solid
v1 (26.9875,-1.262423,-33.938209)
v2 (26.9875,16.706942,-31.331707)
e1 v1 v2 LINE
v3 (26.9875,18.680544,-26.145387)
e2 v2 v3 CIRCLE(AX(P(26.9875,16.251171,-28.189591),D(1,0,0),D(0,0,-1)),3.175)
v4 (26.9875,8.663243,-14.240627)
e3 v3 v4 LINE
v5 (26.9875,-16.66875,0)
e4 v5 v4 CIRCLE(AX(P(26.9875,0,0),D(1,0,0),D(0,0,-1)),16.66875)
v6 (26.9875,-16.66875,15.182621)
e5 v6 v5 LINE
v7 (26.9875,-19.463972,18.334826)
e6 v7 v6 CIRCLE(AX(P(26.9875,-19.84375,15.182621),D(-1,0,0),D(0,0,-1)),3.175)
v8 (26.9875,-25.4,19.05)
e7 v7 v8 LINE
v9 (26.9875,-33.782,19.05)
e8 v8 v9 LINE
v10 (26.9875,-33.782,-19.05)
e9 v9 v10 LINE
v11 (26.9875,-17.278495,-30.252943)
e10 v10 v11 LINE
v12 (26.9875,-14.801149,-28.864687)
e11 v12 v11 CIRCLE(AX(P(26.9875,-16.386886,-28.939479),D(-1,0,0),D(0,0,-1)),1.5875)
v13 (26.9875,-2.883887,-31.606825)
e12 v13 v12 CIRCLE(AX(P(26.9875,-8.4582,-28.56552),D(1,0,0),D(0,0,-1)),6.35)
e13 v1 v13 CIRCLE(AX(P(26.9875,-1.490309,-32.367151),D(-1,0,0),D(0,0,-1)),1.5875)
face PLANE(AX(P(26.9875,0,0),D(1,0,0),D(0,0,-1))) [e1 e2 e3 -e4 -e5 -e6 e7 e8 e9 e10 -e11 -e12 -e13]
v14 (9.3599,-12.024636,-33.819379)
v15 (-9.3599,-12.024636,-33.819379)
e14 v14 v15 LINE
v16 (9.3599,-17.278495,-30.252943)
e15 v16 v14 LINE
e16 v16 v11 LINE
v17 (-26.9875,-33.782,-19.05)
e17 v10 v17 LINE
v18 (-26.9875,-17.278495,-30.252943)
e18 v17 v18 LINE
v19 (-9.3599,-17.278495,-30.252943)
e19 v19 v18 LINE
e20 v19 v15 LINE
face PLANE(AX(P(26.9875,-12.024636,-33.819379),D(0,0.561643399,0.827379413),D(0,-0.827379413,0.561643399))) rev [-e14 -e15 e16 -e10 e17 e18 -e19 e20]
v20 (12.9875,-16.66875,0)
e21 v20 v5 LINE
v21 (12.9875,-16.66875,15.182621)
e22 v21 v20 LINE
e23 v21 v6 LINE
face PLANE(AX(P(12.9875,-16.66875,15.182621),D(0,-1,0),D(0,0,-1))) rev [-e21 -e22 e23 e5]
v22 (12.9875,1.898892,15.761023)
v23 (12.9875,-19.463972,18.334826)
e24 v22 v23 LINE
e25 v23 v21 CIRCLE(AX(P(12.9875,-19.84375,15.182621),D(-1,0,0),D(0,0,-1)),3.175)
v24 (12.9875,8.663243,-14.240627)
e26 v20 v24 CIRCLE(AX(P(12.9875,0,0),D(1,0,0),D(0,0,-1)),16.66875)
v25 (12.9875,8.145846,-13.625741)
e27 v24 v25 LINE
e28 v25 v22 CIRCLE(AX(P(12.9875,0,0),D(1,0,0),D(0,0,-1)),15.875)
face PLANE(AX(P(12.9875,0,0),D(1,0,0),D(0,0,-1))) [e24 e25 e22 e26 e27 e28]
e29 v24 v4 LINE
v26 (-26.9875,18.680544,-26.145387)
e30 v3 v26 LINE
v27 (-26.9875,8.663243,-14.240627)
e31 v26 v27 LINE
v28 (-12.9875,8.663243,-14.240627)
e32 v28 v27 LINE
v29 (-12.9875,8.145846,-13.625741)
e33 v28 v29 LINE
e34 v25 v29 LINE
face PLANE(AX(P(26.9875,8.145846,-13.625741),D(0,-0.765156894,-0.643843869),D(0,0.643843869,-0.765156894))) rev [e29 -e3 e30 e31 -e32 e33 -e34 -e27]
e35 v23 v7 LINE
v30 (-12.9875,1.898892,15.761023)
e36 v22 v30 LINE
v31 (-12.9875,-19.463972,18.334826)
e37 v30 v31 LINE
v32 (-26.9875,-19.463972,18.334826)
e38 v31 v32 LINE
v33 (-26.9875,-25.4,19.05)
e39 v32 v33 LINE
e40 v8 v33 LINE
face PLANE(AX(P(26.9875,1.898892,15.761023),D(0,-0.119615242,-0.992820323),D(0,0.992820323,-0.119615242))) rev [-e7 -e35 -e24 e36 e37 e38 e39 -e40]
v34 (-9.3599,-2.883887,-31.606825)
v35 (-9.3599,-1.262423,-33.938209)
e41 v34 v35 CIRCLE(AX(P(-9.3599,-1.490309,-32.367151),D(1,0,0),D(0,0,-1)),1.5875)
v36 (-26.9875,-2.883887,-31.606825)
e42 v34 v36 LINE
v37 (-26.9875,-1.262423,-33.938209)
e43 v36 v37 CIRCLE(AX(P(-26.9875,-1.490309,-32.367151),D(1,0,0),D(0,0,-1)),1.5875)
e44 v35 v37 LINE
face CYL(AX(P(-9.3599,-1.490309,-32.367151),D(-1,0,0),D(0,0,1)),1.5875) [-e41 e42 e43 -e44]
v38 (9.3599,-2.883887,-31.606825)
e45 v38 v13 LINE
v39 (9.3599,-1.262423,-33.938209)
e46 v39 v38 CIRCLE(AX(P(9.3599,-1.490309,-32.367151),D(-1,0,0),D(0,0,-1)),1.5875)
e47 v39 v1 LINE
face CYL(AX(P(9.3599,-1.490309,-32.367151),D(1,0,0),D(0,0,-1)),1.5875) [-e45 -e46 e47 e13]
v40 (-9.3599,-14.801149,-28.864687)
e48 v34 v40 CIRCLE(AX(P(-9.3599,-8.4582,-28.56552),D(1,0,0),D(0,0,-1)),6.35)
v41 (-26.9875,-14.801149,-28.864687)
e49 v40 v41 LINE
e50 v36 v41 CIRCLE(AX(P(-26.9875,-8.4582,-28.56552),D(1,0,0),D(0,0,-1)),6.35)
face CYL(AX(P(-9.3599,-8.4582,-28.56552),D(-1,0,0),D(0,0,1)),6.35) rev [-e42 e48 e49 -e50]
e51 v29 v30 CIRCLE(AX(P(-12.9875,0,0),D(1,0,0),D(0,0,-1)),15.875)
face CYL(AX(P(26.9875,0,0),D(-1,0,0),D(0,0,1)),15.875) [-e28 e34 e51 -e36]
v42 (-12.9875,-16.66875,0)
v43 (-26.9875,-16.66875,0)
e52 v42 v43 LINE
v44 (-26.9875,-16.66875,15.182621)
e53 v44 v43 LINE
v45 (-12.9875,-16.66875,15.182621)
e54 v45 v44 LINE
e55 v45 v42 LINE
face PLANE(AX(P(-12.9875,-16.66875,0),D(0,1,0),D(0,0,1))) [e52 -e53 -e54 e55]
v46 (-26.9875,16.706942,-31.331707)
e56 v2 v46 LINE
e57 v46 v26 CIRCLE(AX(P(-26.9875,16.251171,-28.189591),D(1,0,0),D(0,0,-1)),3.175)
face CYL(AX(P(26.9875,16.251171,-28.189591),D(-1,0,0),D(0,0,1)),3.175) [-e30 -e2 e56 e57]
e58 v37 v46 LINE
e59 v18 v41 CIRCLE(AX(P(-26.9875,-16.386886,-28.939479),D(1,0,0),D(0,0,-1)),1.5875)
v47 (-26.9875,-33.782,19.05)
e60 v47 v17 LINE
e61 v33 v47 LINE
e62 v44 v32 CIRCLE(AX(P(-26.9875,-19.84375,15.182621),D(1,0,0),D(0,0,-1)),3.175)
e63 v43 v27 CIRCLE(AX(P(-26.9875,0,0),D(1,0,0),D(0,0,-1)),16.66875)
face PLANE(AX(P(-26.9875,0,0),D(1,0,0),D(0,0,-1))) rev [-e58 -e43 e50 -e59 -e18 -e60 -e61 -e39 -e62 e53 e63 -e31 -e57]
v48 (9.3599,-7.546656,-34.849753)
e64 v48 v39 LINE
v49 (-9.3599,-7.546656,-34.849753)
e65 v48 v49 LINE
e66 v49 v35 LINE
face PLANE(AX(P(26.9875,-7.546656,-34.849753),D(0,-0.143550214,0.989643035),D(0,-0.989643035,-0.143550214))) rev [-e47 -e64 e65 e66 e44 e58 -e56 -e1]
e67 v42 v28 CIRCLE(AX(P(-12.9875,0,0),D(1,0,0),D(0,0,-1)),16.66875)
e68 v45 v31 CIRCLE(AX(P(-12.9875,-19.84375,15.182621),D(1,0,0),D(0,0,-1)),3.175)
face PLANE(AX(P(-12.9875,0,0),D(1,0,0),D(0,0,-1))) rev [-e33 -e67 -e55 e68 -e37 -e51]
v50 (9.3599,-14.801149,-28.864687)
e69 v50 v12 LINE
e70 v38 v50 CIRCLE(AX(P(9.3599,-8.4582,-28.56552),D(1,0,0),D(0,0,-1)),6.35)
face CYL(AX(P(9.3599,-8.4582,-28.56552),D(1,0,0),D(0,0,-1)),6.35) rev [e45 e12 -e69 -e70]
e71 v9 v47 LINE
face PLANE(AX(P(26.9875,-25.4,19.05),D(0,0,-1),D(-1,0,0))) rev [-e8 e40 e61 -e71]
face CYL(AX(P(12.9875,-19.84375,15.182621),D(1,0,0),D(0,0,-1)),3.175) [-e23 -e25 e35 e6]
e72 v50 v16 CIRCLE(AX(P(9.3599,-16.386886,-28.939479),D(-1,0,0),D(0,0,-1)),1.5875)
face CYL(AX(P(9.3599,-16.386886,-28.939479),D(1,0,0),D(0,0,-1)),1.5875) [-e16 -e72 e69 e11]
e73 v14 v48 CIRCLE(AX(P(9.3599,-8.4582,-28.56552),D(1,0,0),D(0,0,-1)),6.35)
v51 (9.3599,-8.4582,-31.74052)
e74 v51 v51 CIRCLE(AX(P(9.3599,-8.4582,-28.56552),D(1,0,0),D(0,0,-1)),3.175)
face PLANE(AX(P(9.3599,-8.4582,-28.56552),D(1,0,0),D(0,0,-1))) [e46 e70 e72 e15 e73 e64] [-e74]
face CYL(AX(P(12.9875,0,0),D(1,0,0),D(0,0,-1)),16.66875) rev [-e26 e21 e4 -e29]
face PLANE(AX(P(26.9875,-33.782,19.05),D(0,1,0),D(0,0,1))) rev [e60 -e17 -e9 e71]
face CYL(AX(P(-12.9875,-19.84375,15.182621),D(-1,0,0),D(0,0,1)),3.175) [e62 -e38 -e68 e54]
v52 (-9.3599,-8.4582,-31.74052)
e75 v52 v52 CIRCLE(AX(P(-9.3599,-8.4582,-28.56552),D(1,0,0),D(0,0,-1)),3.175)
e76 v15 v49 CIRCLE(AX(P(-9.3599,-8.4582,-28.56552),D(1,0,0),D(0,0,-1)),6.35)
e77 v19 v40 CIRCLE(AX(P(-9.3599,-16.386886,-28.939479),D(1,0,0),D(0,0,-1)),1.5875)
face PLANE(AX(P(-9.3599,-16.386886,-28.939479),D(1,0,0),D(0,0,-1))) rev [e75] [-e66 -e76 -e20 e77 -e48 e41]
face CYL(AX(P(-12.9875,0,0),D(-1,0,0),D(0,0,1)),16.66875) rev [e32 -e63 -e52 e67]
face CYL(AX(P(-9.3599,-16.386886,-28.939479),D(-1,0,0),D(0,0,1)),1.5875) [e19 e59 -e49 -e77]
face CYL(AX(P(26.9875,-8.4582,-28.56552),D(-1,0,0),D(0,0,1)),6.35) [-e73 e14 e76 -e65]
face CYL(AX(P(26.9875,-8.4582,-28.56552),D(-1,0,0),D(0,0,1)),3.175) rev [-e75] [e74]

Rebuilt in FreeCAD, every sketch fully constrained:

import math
import FreeCAD as App
import Part
import Sketcher
from FreeCAD import Vector
Q = App.Units.Quantity

doc = App.newDocument("Part")
params = doc.addObject("Spreadsheet::Sheet", "Params")
for row, (alias, value) in enumerate([
    ("sketch1_height", "1.5 in"),
    ("sketch1_radius", "0.625 in"),
    ("sketch1_width", "0.33 in"),
    ("pad1_length", "2.125 in"),
    ("sketch2_diameter", "0.25 in"),
    ("sketch2_radius", "0.25 in"),
    ("sketch2_radius2", "0.625 in"),
    ("sketch2_width", "0.33 in"),
    ("pad2_length", "2.125 in"),
    ("sketch3_radius", "0.65625 in"),
    ("sketch3_radius2", "0.625 in"),
    ("sketch3_radius3", "0.125 in"),
    ("pocket1_length", "14 mm"),
    ("sketch4_radius", "0.65625 in"),
    ("sketch4_radius2", "0.625 in"),
    ("sketch4_radius3", "0.125 in"),
    ("pocket2_length", "14 mm"),
    ("sketch5_radius", "0.25 in"),
    ("sketch5_radius2", "0.0625 in"),
    ("pocket3_length", "0.694 in"),
    ("sketch6_radius", "0.25 in"),
    ("sketch6_radius2", "0.0625 in"),
    ("pocket4_length", "0.694 in"),
], start=1):
    params.set(f"A{row}", alias)
    params.set(f"B{row}", "=" + value)
    params.setAlias(f"B{row}", alias)

body = doc.addObject("PartDesign::Body", "Body")

# Sketch on YZ plane
sketch1 = body.newObject("Sketcher::SketchObject", "Sketch")
sketch1.AttachmentSupport = (doc.getObject("YZ_Plane"), [""])
sketch1.MapMode = "FlatFace"
sketch1.addGeometry(Part.LineSegment(Vector(2, 16, 0), Vector(-25, 19, 0)), False)
sketch1.addGeometry(Part.LineSegment(Vector(-25, 19, 0), Vector(-34, 19, 0)), False)
sketch1.addGeometry(Part.LineSegment(Vector(-34, 19, 0), Vector(-34, -19, 0)), False)
sketch1.addGeometry(Part.LineSegment(Vector(-34, -19, 0), Vector(-25, -19, 0)), False)
sketch1.addGeometry(Part.LineSegment(Vector(-25, -19, 0), Vector(2, -16, 0)), False)
sketch1.addGeometry(Part.ArcOfCircle(Part.Circle(Vector(0, 0, 0), Vector(0, 0, 1), 16), math.radians(-83), math.radians(83)), False)
sketch1.addConstraint(Sketcher.Constraint("Coincident", 0, 2, 1, 1))
sketch1.addConstraint(Sketcher.Constraint("Coincident", 1, 2, 2, 1))
sketch1.addConstraint(Sketcher.Constraint("Coincident", 2, 2, 3, 1))
sketch1.addConstraint(Sketcher.Constraint("Coincident", 3, 2, 4, 1))
sketch1.addConstraint(Sketcher.Constraint("Tangent", 4, 2, 5, 1))
sketch1.addConstraint(Sketcher.Constraint("Tangent", 5, 2, 0, 1))
sketch1.addConstraint(Sketcher.Constraint("Horizontal", 1))
sketch1.addConstraint(Sketcher.Constraint("Vertical", 2))
sketch1.addConstraint(Sketcher.Constraint("Horizontal", 3))
sketch1.addConstraint(Sketcher.Constraint("Coincident", 5, 3, -1, 1))
sketch1.addConstraint(Sketcher.Constraint("Symmetric", 0, 2, 3, 2, -1))
sketch1.addConstraint(Sketcher.Constraint("DistanceY", 2, 2, 2, 1, Q("1.5 in")))
sketch1.addConstraint(Sketcher.Constraint("DistanceX", 0, 2, -1, 1, Q("1 in")))
sketch1.addConstraint(Sketcher.Constraint("Radius", 5, Q("0.625 in")))
sketch1.addConstraint(Sketcher.Constraint("DistanceX", 1, 2, 1, 1, Q("0.33 in")))
sketch1.setExpression("Constraints[11]", "Params.sketch1_height")
sketch1.setExpression("Constraints[13]", "Params.sketch1_radius")
sketch1.setExpression("Constraints[14]", "Params.sketch1_width")
pad1 = body.newObject("PartDesign::Pad", "Pad")
pad1.Profile = sketch1
pad1.setExpression("Length", "Params.pad1_length")
pad1.Midplane = True

# Sketch on YZ plane
sketch2 = body.newObject("Sketcher::SketchObject", "Sketch001")
sketch2.AttachmentSupport = (doc.getObject("YZ_Plane"), [""])
sketch2.MapMode = "FlatFace"
sketch2.addGeometry(Part.LineSegment(Vector(-7.5, -34.8, 0), Vector(16.7, -31.3, 0)), False)
sketch2.addGeometry(Part.ArcOfCircle(Part.Circle(Vector(16.3, -28.2, 0), Vector(0, 0, 1), 3.2), math.radians(-82), math.radians(40)), False)
sketch2.addGeometry(Part.LineSegment(Vector(18.7, -26.1, 0), Vector(8.1, -13.6, 0)), False)
sketch2.addGeometry(Part.ArcOfCircle(Part.Circle(Vector(0, 0, 0), Vector(0, 0, 1), 15.9), math.radians(-83), math.radians(-59)), False)
sketch2.addGeometry(Part.LineSegment(Vector(1.9, -15.8, 0), Vector(-25.4, -19.1, 0)), False)
sketch2.addGeometry(Part.LineSegment(Vector(-25.4, -19.1, 0), Vector(-33.8, -19.1, 0)), False)
sketch2.addGeometry(Part.LineSegment(Vector(-33.8, -19.1, 0), Vector(-12, -33.8, 0)), False)
sketch2.addGeometry(Part.ArcOfCircle(Part.Circle(Vector(-8.5, -28.6, 0), Vector(0, 0, 1), 6.3), math.radians(-124), math.radians(-82)), False)
sketch2.addGeometry(Part.Circle(Vector(-8.5, -28.6, 0), Vector(0, 0, 1), 3.2), False)
sketch2.addConstraint(Sketcher.Constraint("Tangent", 0, 2, 1, 1))
sketch2.addConstraint(Sketcher.Constraint("Tangent", 1, 2, 2, 1))
sketch2.addConstraint(Sketcher.Constraint("Coincident", 2, 2, 3, 2))
sketch2.addConstraint(Sketcher.Constraint("Tangent", 3, 1, 4, 1))
sketch2.addConstraint(Sketcher.Constraint("Coincident", 4, 2, 5, 1))
sketch2.addConstraint(Sketcher.Constraint("Coincident", 5, 2, 6, 1))
sketch2.addConstraint(Sketcher.Constraint("Tangent", 6, 2, 7, 1))
sketch2.addConstraint(Sketcher.Constraint("Tangent", 7, 2, 0, 1))
sketch2.addConstraint(Sketcher.Constraint("Horizontal", 5))
sketch2.addConstraint(Sketcher.Constraint("Coincident", 3, 3, -1, 1))
sketch2.addConstraint(Sketcher.Constraint("Coincident", 8, 3, 7, 3))
sketch2.addConstraint(Sketcher.Constraint("Equal", 1, 8))
sketch2.addConstraint(Sketcher.Constraint("Diameter", 8, Q("0.25 in")))
sketch2.addConstraint(Sketcher.Constraint("Radius", 7, Q("0.25 in")))
sketch2.addConstraint(Sketcher.Constraint("DistanceX", 4, 2, -1, 1, Q("1 in")))
sketch2.addConstraint(Sketcher.Constraint("Radius", 3, Q("0.625 in")))
sketch2.addConstraint(Sketcher.Constraint("DistanceX", 5, 2, 5, 1, Q("0.33 in")))
sketch2.addConstraint(Sketcher.Constraint("DistanceY", 4, 2, -1, 1, Q("0.75 in")))
sketch2.addConstraint(Sketcher.Constraint("DistanceX", 7, 3, -1, 1, Q("0.333 in")))
sketch2.addConstraint(Sketcher.Constraint("DistanceX", 0, 2, 1, 2, 1.973601))
sketch2.addConstraint(Sketcher.Constraint("DistanceX", 2, 2, 1, 2, 10.534698))
sketch2.addConstraint(Sketcher.Constraint("Distance", 0, 24.507421))
sketch2.addConstraint(Sketcher.Constraint("Distance", 6, 26.29672))
sketch2.setExpression("Constraints[12]", "Params.sketch2_diameter")
sketch2.setExpression("Constraints[13]", "Params.sketch2_radius")
sketch2.setExpression("Constraints[15]", "Params.sketch2_radius2")
sketch2.setExpression("Constraints[16]", "Params.sketch2_width")
pad2 = body.newObject("PartDesign::Pad", "Pad001")
pad2.Profile = sketch2
pad2.setExpression("Length", "Params.pad2_length")
pad2.Midplane = True

# Sketch on YZ plane
sketch3 = body.newObject("Sketcher::SketchObject", "Sketch002")
sketch3.AttachmentSupport = (doc.getObject("YZ_Plane"), [""])
sketch3.MapMode = "FlatFace"
sketch3.AttachmentOffset = App.Placement(Vector(0, 0, 1.0625 * 25.4), App.Rotation())
sketch3.addGeometry(Part.LineSegment(Vector(-16.7, 15.2, 0), Vector(-16.7, 0, 0)), False)
sketch3.addGeometry(Part.ArcOfCircle(Part.Circle(Vector(0, 0, 0), Vector(0, 0, 1), 16.7), math.radians(180), math.radians(301)), False)
sketch3.addGeometry(Part.LineSegment(Vector(8.7, -14.2, 0), Vector(8.1, -13.6, 0)), False)
sketch3.addGeometry(Part.ArcOfCircle(Part.Circle(Vector(0, 0, 0), Vector(0, 0, 1), 15.9), math.radians(-59), math.radians(83)), False)
sketch3.addGeometry(Part.LineSegment(Vector(1.9, 15.8, 0), Vector(-19.5, 18.3, 0)), False)
sketch3.addGeometry(Part.ArcOfCircle(Part.Circle(Vector(-19.8, 15.2, 0), Vector(0, 0, 1), 3.2), math.radians(0), math.radians(83)), False)
sketch3.addConstraint(Sketcher.Constraint("Tangent", 0, 2, 1, 1))
sketch3.addConstraint(Sketcher.Constraint("Coincident", 1, 2, 2, 1))
sketch3.addConstraint(Sketcher.Constraint("Coincident", 2, 2, 3, 1))
sketch3.addConstraint(Sketcher.Constraint("Tangent", 3, 2, 4, 1))
sketch3.addConstraint(Sketcher.Constraint("Tangent", 4, 2, 5, 2))
sketch3.addConstraint(Sketcher.Constraint("Tangent", 5, 1, 0, 1))
sketch3.addConstraint(Sketcher.Constraint("Vertical", 0))
sketch3.addConstraint(Sketcher.Constraint("Coincident", 1, 3, -1, 1))
sketch3.addConstraint(Sketcher.Constraint("Coincident", 3, 3, -1, 1))
sketch3.addConstraint(Sketcher.Constraint("Radius", 1, Q("0.65625 in")))
sketch3.addConstraint(Sketcher.Constraint("Radius", 3, Q("0.625 in")))
sketch3.addConstraint(Sketcher.Constraint("Radius", 5, Q("0.125 in")))
sketch3.addConstraint(Sketcher.Constraint("DistanceY", 0, 2, 0, 1, 15.182621))
sketch3.addConstraint(Sketcher.Constraint("DistanceY", 2, 2, -1, 1, 13.625741))
sketch3.addConstraint(Sketcher.Constraint("Distance", 2, 0.803607))
sketch3.setExpression("Constraints[9]", "Params.sketch3_radius")
sketch3.setExpression("Constraints[10]", "Params.sketch3_radius2")
sketch3.setExpression("Constraints[11]", "Params.sketch3_radius3")
pocket1 = body.newObject("PartDesign::Pocket", "Pocket")
pocket1.Profile = sketch3
pocket1.setExpression("Length", "Params.pocket1_length")

# Sketch on YZ plane
sketch4 = body.newObject("Sketcher::SketchObject", "Sketch003")
sketch4.AttachmentSupport = (doc.getObject("YZ_Plane"), [""])
sketch4.MapMode = "FlatFace"
sketch4.AttachmentOffset = App.Placement(Vector(0, 0, -12.9875), App.Rotation())
sketch4.addGeometry(Part.LineSegment(Vector(-16.7, 15.2, 0), Vector(-16.7, 0, 0)), False)
sketch4.addGeometry(Part.ArcOfCircle(Part.Circle(Vector(0, 0, 0), Vector(0, 0, 1), 16.7), math.radians(180), math.radians(301)), False)
sketch4.addGeometry(Part.LineSegment(Vector(8.7, -14.2, 0), Vector(8.1, -13.6, 0)), False)
sketch4.addGeometry(Part.ArcOfCircle(Part.Circle(Vector(0, 0, 0), Vector(0, 0, 1), 15.9), math.radians(-59), math.radians(83)), False)
sketch4.addGeometry(Part.LineSegment(Vector(1.9, 15.8, 0), Vector(-19.5, 18.3, 0)), False)
sketch4.addGeometry(Part.ArcOfCircle(Part.Circle(Vector(-19.8, 15.2, 0), Vector(0, 0, 1), 3.2), math.radians(0), math.radians(83)), False)
sketch4.addConstraint(Sketcher.Constraint("Tangent", 0, 2, 1, 1))
sketch4.addConstraint(Sketcher.Constraint("Coincident", 1, 2, 2, 1))
sketch4.addConstraint(Sketcher.Constraint("Coincident", 2, 2, 3, 1))
sketch4.addConstraint(Sketcher.Constraint("Tangent", 3, 2, 4, 1))
sketch4.addConstraint(Sketcher.Constraint("Tangent", 4, 2, 5, 2))
sketch4.addConstraint(Sketcher.Constraint("Tangent", 5, 1, 0, 1))
sketch4.addConstraint(Sketcher.Constraint("Vertical", 0))
sketch4.addConstraint(Sketcher.Constraint("Coincident", 1, 3, -1, 1))
sketch4.addConstraint(Sketcher.Constraint("Coincident", 3, 3, -1, 1))
sketch4.addConstraint(Sketcher.Constraint("Radius", 1, Q("0.65625 in")))
sketch4.addConstraint(Sketcher.Constraint("Radius", 3, Q("0.625 in")))
sketch4.addConstraint(Sketcher.Constraint("Radius", 5, Q("0.125 in")))
sketch4.addConstraint(Sketcher.Constraint("DistanceY", 0, 2, 0, 1, 15.182621))
sketch4.addConstraint(Sketcher.Constraint("DistanceY", 2, 2, -1, 1, 13.625741))
sketch4.addConstraint(Sketcher.Constraint("Distance", 2, 0.803607))
sketch4.setExpression("Constraints[9]", "Params.sketch4_radius")
sketch4.setExpression("Constraints[10]", "Params.sketch4_radius2")
sketch4.setExpression("Constraints[11]", "Params.sketch4_radius3")
pocket2 = body.newObject("PartDesign::Pocket", "Pocket001")
pocket2.Profile = sketch4
pocket2.setExpression("Length", "Params.pocket2_length")

# Sketch on YZ plane
sketch5 = body.newObject("Sketcher::SketchObject", "Sketch004")
sketch5.AttachmentSupport = (doc.getObject("YZ_Plane"), [""])
sketch5.MapMode = "FlatFace"
sketch5.AttachmentOffset = App.Placement(Vector(0, 0, 1.0625 * 25.4), App.Rotation())
sketch5.addGeometry(Part.LineSegment(Vector(-17.3, -30.3, 0), Vector(-12, -33.8, 0)), False)
sketch5.addGeometry(Part.ArcOfCircle(Part.Circle(Vector(-8.5, -28.6, 0), Vector(0, 0, 1), 6.3), math.radians(-124), math.radians(-82)), False)
sketch5.addGeometry(Part.LineSegment(Vector(-7.5, -34.8, 0), Vector(-1.3, -33.9, 0)), False)
sketch5.addGeometry(Part.ArcOfCircle(Part.Circle(Vector(-1.5, -32.4, 0), Vector(0, 0, 1), 1.6), math.radians(151), math.radians(278)), False)
sketch5.addGeometry(Part.ArcOfCircle(Part.Circle(Vector(-8.5, -28.6, 0), Vector(0, 0, 1), 6.3), math.radians(-29), math.radians(183)), False)
sketch5.addGeometry(Part.ArcOfCircle(Part.Circle(Vector(-16.4, -28.9, 0), Vector(0, 0, 1), 1.6), math.radians(-124), math.radians(3)), False)
sketch5.addConstraint(Sketcher.Constraint("Tangent", 0, 2, 1, 1))
sketch5.addConstraint(Sketcher.Constraint("Tangent", 1, 2, 2, 1))
sketch5.addConstraint(Sketcher.Constraint("Tangent", 2, 2, 3, 2))
sketch5.addConstraint(Sketcher.Constraint("Tangent", 3, 1, 4, 1))
sketch5.addConstraint(Sketcher.Constraint("Tangent", 4, 2, 5, 2))
sketch5.addConstraint(Sketcher.Constraint("Tangent", 5, 1, 0, 1))
sketch5.addConstraint(Sketcher.Constraint("Coincident", 4, 3, 1, 3))
sketch5.addConstraint(Sketcher.Constraint("Equal", 1, 4))
sketch5.addConstraint(Sketcher.Constraint("Equal", 3, 5))
sketch5.addConstraint(Sketcher.Constraint("Radius", 1, Q("0.25 in")))
sketch5.addConstraint(Sketcher.Constraint("Radius", 3, Q("0.0625 in")))
sketch5.addConstraint(Sketcher.Constraint("DistanceX", 1, 3, -1, 1, Q("0.333 in")))
sketch5.addConstraint(Sketcher.Constraint("DistanceY", 0, 2, 5, 3, 4.8799))
sketch5.addConstraint(Sketcher.Constraint("DistanceY", 1, 3, -1, 1, 28.56552))
sketch5.addConstraint(Sketcher.Constraint("DistanceX", 3, 3, -1, 1, 1.490309))
sketch5.setExpression("Constraints[9]", "Params.sketch5_radius")
sketch5.setExpression("Constraints[10]", "Params.sketch5_radius2")
pocket3 = body.newObject("PartDesign::Pocket", "Pocket002")
pocket3.Profile = sketch5
pocket3.setExpression("Length", "Params.pocket3_length")

# Sketch on YZ plane
sketch6 = body.newObject("Sketcher::SketchObject", "Sketch005")
sketch6.AttachmentSupport = (doc.getObject("YZ_Plane"), [""])
sketch6.MapMode = "FlatFace"
sketch6.AttachmentOffset = App.Placement(Vector(0, 0, -1.0625 * 25.4), App.Rotation())
sketch6.addGeometry(Part.LineSegment(Vector(-17.3, -30.3, 0), Vector(-12, -33.8, 0)), False)
sketch6.addGeometry(Part.ArcOfCircle(Part.Circle(Vector(-8.5, -28.6, 0), Vector(0, 0, 1), 6.3), math.radians(-124), math.radians(-82)), False)
sketch6.addGeometry(Part.LineSegment(Vector(-7.5, -34.8, 0), Vector(-1.3, -33.9, 0)), False)
sketch6.addGeometry(Part.ArcOfCircle(Part.Circle(Vector(-1.5, -32.4, 0), Vector(0, 0, 1), 1.6), math.radians(151), math.radians(278)), False)
sketch6.addGeometry(Part.ArcOfCircle(Part.Circle(Vector(-8.5, -28.6, 0), Vector(0, 0, 1), 6.3), math.radians(-29), math.radians(183)), False)
sketch6.addGeometry(Part.ArcOfCircle(Part.Circle(Vector(-16.4, -28.9, 0), Vector(0, 0, 1), 1.6), math.radians(-124), math.radians(3)), False)
sketch6.addConstraint(Sketcher.Constraint("Tangent", 0, 2, 1, 1))
sketch6.addConstraint(Sketcher.Constraint("Tangent", 1, 2, 2, 1))
sketch6.addConstraint(Sketcher.Constraint("Tangent", 2, 2, 3, 2))
sketch6.addConstraint(Sketcher.Constraint("Tangent", 3, 1, 4, 1))
sketch6.addConstraint(Sketcher.Constraint("Tangent", 4, 2, 5, 2))
sketch6.addConstraint(Sketcher.Constraint("Tangent", 5, 1, 0, 1))
sketch6.addConstraint(Sketcher.Constraint("Coincident", 4, 3, 1, 3))
sketch6.addConstraint(Sketcher.Constraint("Equal", 1, 4))
sketch6.addConstraint(Sketcher.Constraint("Equal", 3, 5))
sketch6.addConstraint(Sketcher.Constraint("Radius", 1, Q("0.25 in")))
sketch6.addConstraint(Sketcher.Constraint("Radius", 3, Q("0.0625 in")))
sketch6.addConstraint(Sketcher.Constraint("DistanceX", 1, 3, -1, 1, Q("0.333 in")))
sketch6.addConstraint(Sketcher.Constraint("DistanceY", 0, 2, 5, 3, 4.8799))
sketch6.addConstraint(Sketcher.Constraint("DistanceY", 1, 3, -1, 1, 28.56552))
sketch6.addConstraint(Sketcher.Constraint("DistanceX", 3, 3, -1, 1, 1.490309))
sketch6.setExpression("Constraints[9]", "Params.sketch6_radius")
sketch6.setExpression("Constraints[10]", "Params.sketch6_radius2")
pocket4 = body.newObject("PartDesign::Pocket", "Pocket003")
pocket4.Profile = sketch6
pocket4.setExpression("Length", "Params.pocket4_length")
pocket4.Reversed = True

doc.recompute()
